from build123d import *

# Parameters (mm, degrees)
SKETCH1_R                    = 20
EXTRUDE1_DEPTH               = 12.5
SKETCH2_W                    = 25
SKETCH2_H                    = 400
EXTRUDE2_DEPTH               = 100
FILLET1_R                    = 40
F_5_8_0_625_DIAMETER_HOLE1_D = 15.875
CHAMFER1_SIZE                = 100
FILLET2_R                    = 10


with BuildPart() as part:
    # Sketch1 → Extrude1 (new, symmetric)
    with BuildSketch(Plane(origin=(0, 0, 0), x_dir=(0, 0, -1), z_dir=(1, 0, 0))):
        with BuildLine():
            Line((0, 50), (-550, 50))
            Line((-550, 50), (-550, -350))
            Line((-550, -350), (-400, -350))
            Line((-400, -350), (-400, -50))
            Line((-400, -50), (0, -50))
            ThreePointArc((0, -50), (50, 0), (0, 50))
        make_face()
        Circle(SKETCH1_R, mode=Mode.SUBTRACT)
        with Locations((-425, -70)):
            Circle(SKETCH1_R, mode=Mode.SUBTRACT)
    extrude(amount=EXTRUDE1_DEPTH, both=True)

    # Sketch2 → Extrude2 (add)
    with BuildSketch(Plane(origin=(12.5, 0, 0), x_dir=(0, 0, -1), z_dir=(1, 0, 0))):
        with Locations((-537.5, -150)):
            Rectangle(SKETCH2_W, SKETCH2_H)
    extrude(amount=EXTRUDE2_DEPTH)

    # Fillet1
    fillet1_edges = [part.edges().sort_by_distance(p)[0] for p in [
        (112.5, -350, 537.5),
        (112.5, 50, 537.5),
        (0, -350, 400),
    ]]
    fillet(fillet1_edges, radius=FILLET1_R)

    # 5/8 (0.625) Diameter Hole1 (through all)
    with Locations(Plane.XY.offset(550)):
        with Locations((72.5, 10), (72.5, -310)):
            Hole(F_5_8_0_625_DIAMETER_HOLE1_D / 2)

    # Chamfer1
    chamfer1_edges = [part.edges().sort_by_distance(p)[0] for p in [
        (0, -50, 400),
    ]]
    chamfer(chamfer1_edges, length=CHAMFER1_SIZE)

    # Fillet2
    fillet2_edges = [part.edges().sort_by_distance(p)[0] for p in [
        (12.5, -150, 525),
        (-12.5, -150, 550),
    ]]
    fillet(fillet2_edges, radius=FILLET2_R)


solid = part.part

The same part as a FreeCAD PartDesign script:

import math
import FreeCAD as App
import Part
import Sketcher


def edges_at(feature, points):
    """Names of the edges that pass closest to the given points."""
    edges = feature.Shape.Edges
    near = lambda p: min(range(len(edges)), key=lambda i: edges[i].distToShape(Part.Vertex(*p))[0])
    return sorted({f"Edge{near(p) + 1}" for p in points})


def add_polygon(sketch, points):
    """Adds a closed chain of lines whose ends are joined by coincident constraints."""
    first, n = sketch.GeometryCount, len(points)
    for a, b in zip(points, points[1:] + points[:1]):
        sketch.addGeometry(Part.LineSegment(App.Vector(*a, 0), App.Vector(*b, 0)), False)
    for i in range(n):
        sketch.addConstraint(Sketcher.Constraint("Coincident", first + i, 2, first + (i + 1) % n, 1))

doc = App.newDocument("Part")
body = doc.addObject("PartDesign::Body", "Body")

# Sketch on YZ plane
sketch1 = body.newObject("Sketcher::SketchObject", "Sketch")
sketch1.AttachmentSupport = (doc.getObject("YZ_Plane"), [""])
sketch1.MapMode = "FlatFace"
sketch1.addGeometry([
    Part.LineSegment(App.Vector(50, 0, 0), App.Vector(50, 550, 0)),  # 0
    Part.LineSegment(App.Vector(50, 550, 0), App.Vector(-350, 550, 0)),  # 1
    Part.LineSegment(App.Vector(-350, 550, 0), App.Vector(-350, 400, 0)),  # 2
    Part.LineSegment(App.Vector(-350, 400, 0), App.Vector(-50, 400, 0)),  # 3
    Part.LineSegment(App.Vector(-50, 400, 0), App.Vector(-50, 0, 0)),  # 4
    Part.ArcOfCircle(Part.Circle(App.Vector(0, 0, 0), App.Vector(0, 0, 1), 50), math.radians(180), math.radians(360)),  # 5
    Part.Circle(App.Vector(-70, 425, 0), App.Vector(0, 0, 1), 20),  # 6
    Part.Circle(App.Vector(0, 0, 0), App.Vector(0, 0, 1), 20),  # 7
], False)
sketch1.addConstraint([
    Sketcher.Constraint("Coincident", 0, 2, 1, 1),
    Sketcher.Constraint("Coincident", 1, 2, 2, 1),
    Sketcher.Constraint("Coincident", 2, 2, 3, 1),
    Sketcher.Constraint("Coincident", 3, 2, 4, 1),
    Sketcher.Constraint("Tangent", 4, 2, 5, 1),
    Sketcher.Constraint("Tangent", 5, 2, 0, 1),
    Sketcher.Constraint("Vertical", 0),
    Sketcher.Constraint("Horizontal", 1),
    Sketcher.Constraint("Vertical", 2),
    Sketcher.Constraint("Horizontal", 3),
    Sketcher.Constraint("Vertical", 4),
    Sketcher.Constraint("Coincident", 5, 3, -1, 1),
    Sketcher.Constraint("Coincident", 7, 3, -1, 1),
    Sketcher.Constraint("Equal", 6, 7),
    Sketcher.Constraint("Equal", 1, 4),
    Sketcher.Constraint("Diameter", 6, 40.0),
    Sketcher.Constraint("Radius", 5, 50.0),
    Sketcher.Constraint("DistanceX", 1, 2, 1, 1, 400.0),
    Sketcher.Constraint("DistanceY", 0, 1, 0, 2, 550.0),
    Sketcher.Constraint("DistanceX", 6, 3, -1, 1, 70.0),
    Sketcher.Constraint("DistanceY", -1, 1, 6, 3, 425.0),
])
pad1 = body.newObject("PartDesign::Pad", "Pad")
pad1.Profile = sketch1
pad1.Length = 25
pad1.Midplane = True

# Sketch on YZ plane
sketch2 = body.newObject("Sketcher::SketchObject", "Sketch001")
sketch2.AttachmentSupport = (doc.getObject("YZ_Plane"), [""])
sketch2.MapMode = "FlatFace"
sketch2.AttachmentOffset = App.Placement(App.Vector(0, 0, 12.5), App.Rotation())
add_polygon(sketch2, [(50, 550), (-350, 550), (-350, 525), (50, 525)])  # lines 0-3
sketch2.addConstraint([
    Sketcher.Constraint("Horizontal", 0),
    Sketcher.Constraint("Vertical", 1),
    Sketcher.Constraint("Horizontal", 2),
    Sketcher.Constraint("Vertical", 3),
    Sketcher.Constraint("DistanceX", 0, 2, 0, 1, 400.0),
    Sketcher.Constraint("DistanceY", 1, 2, 1, 1, 25.0),
    Sketcher.Constraint("DistanceX", 0, 2, -1, 1, 350.0),
    Sketcher.Constraint("DistanceY", -1, 1, 0, 2, 550.0),
])
pad2 = body.newObject("PartDesign::Pad", "Pad001")
pad2.Profile = sketch2
pad2.Length = 100
doc.recompute()

fillet = body.newObject("PartDesign::Fillet", "Fillet")
fillet.Base = (pad2, edges_at(pad2, [(112.5, -350, 537.5), (112.5, 50, 537.5), (0, -350, 400)]))
fillet.Radius = 40

# Sketch on XY plane
sketch3 = body.newObject("Sketcher::SketchObject", "Sketch002")
sketch3.AttachmentSupport = (doc.getObject("XY_Plane"), [""])
sketch3.MapMode = "FlatFace"
sketch3.AttachmentOffset = App.Placement(App.Vector(0, 0, 550), App.Rotation())
sketch3.addGeometry([
    Part.Circle(App.Vector(72.5, 10, 0), App.Vector(0, 0, 1), 7.9375),
    Part.Circle(App.Vector(72.5, -310, 0), App.Vector(0, 0, 1), 7.9375),
], False)
sketch3.addConstraint([
    Sketcher.Constraint("Equal", 0, 1),
    Sketcher.Constraint("Vertical", 0, 3, 1, 3),
    Sketcher.Constraint("Diameter", 0, 15.875),
    Sketcher.Constraint("DistanceY", -1, 1, 0, 3, 10.0),
    Sketcher.Constraint("DistanceY", 1, 3, -1, 1, 310.0),
    Sketcher.Constraint("DistanceX", -1, 1, 0, 3, 72.5),
])
doc.recompute()
hole = body.newObject("PartDesign::Hole", "Hole")
hole.Profile = sketch3
hole.ThreadType = "None"
hole.Diameter = 15.875
hole.DepthType = "ThroughAll"
doc.recompute()

chamfer = body.newObject("PartDesign::Chamfer", "Chamfer")
chamfer.Base = (hole, edges_at(hole, [(0, -50, 400)]))
chamfer.Size = 100
doc.recompute()

fillet2 = body.newObject("PartDesign::Fillet", "Fillet001")
fillet2.Base = (chamfer, edges_at(chamfer, [(12.5, -150, 525), (-12.5, -150, 550)]))
fillet2.Radius = 10

doc.recompute()
